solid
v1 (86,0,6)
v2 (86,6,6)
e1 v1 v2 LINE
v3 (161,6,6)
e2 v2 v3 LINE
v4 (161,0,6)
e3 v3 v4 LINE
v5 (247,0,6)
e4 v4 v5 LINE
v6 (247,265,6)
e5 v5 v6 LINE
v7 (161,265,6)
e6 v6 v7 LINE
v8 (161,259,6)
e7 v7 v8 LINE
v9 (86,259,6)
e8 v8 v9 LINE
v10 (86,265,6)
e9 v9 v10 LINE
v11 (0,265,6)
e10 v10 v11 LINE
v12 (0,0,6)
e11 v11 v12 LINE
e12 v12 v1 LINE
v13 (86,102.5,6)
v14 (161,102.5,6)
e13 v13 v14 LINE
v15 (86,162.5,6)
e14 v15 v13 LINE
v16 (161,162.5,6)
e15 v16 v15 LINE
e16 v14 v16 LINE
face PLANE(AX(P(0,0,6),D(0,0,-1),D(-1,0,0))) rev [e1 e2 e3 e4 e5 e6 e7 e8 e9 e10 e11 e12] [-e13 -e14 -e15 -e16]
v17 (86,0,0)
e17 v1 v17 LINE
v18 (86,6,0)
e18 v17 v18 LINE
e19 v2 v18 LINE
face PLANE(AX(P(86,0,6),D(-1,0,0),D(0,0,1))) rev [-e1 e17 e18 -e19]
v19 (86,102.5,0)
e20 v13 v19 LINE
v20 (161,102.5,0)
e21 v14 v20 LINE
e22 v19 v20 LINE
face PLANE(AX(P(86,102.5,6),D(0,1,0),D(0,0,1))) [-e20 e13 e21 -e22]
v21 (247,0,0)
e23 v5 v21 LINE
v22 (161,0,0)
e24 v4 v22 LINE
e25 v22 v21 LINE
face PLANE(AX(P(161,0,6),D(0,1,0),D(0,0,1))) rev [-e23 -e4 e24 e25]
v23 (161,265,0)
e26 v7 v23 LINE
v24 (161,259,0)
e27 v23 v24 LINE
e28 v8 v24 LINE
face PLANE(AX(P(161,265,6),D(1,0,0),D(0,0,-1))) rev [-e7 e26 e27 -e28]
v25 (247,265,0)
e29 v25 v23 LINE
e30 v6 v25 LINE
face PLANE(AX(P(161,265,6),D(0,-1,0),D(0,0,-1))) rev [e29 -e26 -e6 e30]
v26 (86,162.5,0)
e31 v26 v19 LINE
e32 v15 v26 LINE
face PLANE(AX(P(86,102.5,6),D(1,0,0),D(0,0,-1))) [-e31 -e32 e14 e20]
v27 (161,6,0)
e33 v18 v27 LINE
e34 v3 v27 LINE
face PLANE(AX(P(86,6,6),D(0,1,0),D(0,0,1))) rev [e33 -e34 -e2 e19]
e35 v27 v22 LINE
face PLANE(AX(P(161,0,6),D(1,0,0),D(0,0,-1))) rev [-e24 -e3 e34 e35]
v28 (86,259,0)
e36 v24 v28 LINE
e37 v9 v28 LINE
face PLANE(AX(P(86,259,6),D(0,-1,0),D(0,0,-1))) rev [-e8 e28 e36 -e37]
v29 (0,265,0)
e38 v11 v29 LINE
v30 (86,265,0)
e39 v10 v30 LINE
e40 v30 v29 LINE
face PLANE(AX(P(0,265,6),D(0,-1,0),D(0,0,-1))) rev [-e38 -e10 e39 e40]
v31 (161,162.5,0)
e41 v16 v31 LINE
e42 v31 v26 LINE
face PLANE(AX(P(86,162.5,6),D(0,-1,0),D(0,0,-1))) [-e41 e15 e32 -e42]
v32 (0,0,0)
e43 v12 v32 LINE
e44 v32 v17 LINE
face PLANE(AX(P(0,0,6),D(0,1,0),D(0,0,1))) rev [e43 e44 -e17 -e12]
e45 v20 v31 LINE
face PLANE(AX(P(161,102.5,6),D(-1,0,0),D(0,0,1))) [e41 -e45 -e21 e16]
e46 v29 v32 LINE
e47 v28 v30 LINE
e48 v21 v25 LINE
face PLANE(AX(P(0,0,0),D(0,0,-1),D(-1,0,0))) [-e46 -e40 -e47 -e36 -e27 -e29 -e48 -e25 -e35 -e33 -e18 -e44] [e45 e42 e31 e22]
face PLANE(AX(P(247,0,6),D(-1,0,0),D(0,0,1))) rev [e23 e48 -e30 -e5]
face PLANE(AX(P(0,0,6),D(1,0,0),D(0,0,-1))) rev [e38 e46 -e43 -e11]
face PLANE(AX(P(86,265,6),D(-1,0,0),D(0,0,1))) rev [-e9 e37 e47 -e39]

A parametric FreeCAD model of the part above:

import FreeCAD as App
import Part
import Sketcher

V = App.Vector

doc = App.newDocument("Part")
body = doc.addObject("PartDesign::Body", "Body")

sketch1 = doc.addObject("Sketcher::SketchObject", "Sketch")
body.addObject(sketch1)
sketch1.AttachmentSupport = (doc.XY_Plane, [""])
sketch1.MapMode = "FlatFace"
sketch1.addGeometry(Part.LineSegment(V(161, 0, 0), V(247, 0, 0)), False)
sketch1.addGeometry(Part.LineSegment(V(247, 0, 0), V(247, 265, 0)), False)
sketch1.addGeometry(Part.LineSegment(V(247, 265, 0), V(161, 265, 0)), False)
sketch1.addGeometry(Part.LineSegment(V(161, 265, 0), V(161, 259, 0)), False)
sketch1.addGeometry(Part.LineSegment(V(161, 259, 0), V(86, 259, 0)), False)
sketch1.addGeometry(Part.LineSegment(V(86, 259, 0), V(86, 265, 0)), False)
sketch1.addGeometry(Part.LineSegment(V(86, 265, 0), V(0, 265, 0)), False)
sketch1.addGeometry(Part.LineSegment(V(0, 265, 0), V(0, 0, 0)), False)
sketch1.addGeometry(Part.LineSegment(V(0, 0, 0), V(86, 0, 0)), False)
sketch1.addGeometry(Part.LineSegment(V(86, 0, 0), V(86, 6, 0)), False)
sketch1.addGeometry(Part.LineSegment(V(86, 6, 0), V(161, 6, 0)), False)
sketch1.addGeometry(Part.LineSegment(V(161, 6, 0), V(161, 0, 0)), False)
sketch1.addGeometry(Part.LineSegment(V(161, 102, 0), V(86, 102, 0)), False)
sketch1.addGeometry(Part.LineSegment(V(86, 102, 0), V(86, 162, 0)), False)
sketch1.addGeometry(Part.LineSegment(V(86, 162, 0), V(161, 162, 0)), False)
sketch1.addGeometry(Part.LineSegment(V(161, 162, 0), V(161, 102, 0)), False)
sketch1.addConstraint(Sketcher.Constraint("Coincident", 0, 2, 1, 1))
sketch1.addConstraint(Sketcher.Constraint("Coincident", 1, 2, 2, 1))
sketch1.addConstraint(Sketcher.Constraint("Coincident", 2, 2, 3, 1))
sketch1.addConstraint(Sketcher.Constraint("Coincident", 3, 2, 4, 1))
sketch1.addConstraint(Sketcher.Constraint("Coincident", 4, 2, 5, 1))
sketch1.addConstraint(Sketcher.Constraint("Coincident", 5, 2, 6, 1))
sketch1.addConstraint(Sketcher.Constraint("Coincident", 6, 2, 7, 1))
sketch1.addConstraint(Sketcher.Constraint("Coincident", 7, 2, 8, 1))
sketch1.addConstraint(Sketcher.Constraint("Coincident", 8, 2, 9, 1))
sketch1.addConstraint(Sketcher.Constraint("Coincident", 9, 2, 10, 1))
sketch1.addConstraint(Sketcher.Constraint("Coincident", 10, 2, 11, 1))
sketch1.addConstraint(Sketcher.Constraint("Coincident", 11, 2, 0, 1))
sketch1.addConstraint(Sketcher.Constraint("Coincident", 12, 2, 13, 1))
sketch1.addConstraint(Sketcher.Constraint("Coincident", 13, 2, 14, 1))
sketch1.addConstraint(Sketcher.Constraint("Coincident", 14, 2, 15, 1))
sketch1.addConstraint(Sketcher.Constraint("Coincident", 15, 2, 12, 1))
sketch1.addConstraint(Sketcher.Constraint("Horizontal", 0))
sketch1.addConstraint(Sketcher.Constraint("Vertical", 1))
sketch1.addConstraint(Sketcher.Constraint("Horizontal", 2))
sketch1.addConstraint(Sketcher.Constraint("Vertical", 3))
sketch1.addConstraint(Sketcher.Constraint("Horizontal", 4))
sketch1.addConstraint(Sketcher.Constraint("Vertical", 5))
sketch1.addConstraint(Sketcher.Constraint("Horizontal", 6))
sketch1.addConstraint(Sketcher.Constraint("Vertical", 7))
sketch1.addConstraint(Sketcher.Constraint("Horizontal", 8))
sketch1.addConstraint(Sketcher.Constraint("Vertical", 9))
sketch1.addConstraint(Sketcher.Constraint("Horizontal", 10))
sketch1.addConstraint(Sketcher.Constraint("Vertical", 11))
sketch1.addConstraint(Sketcher.Constraint("Horizontal", 12))
sketch1.addConstraint(Sketcher.Constraint("Vertical", 13))
sketch1.addConstraint(Sketcher.Constraint("Horizontal", 14))
sketch1.addConstraint(Sketcher.Constraint("Vertical", 15))
sketch1.addConstraint(Sketcher.Constraint("Coincident", 7, 2, -1, 1))
sketch1.addConstraint(Sketcher.Constraint("PointOnObject", 0, 2, -1))
sketch1.addConstraint(Sketcher.Constraint("Horizontal", 2, 2, 5, 2))
sketch1.addConstraint(Sketcher.Constraint("Vertical", 5, 2, 8, 2))
sketch1.addConstraint(Sketcher.Constraint("Vertical", 3, 2, 10, 2))
sketch1.addConstraint(Sketcher.Constraint("Vertical", 9, 2, 12, 2))
sketch1.addConstraint(Sketcher.Constraint("Vertical", 11, 2, 14, 2))
sketch1.addConstraint(Sketcher.Constraint("Equal", 2, 6))
sketch1.addConstraint(Sketcher.Constraint("Equal", 5, 9))
sketch1.addConstraint(Sketcher.Constraint("DistanceX", 0, 1, 0, 2, 86.0))
sketch1.addConstraint(Sketcher.Constraint("DistanceX", 4, 2, 4, 1, 75.0))
sketch1.addConstraint(Sketcher.Constraint("DistanceY", 1, 1, 1, 2, 265.0))
sketch1.addConstraint(Sketcher.Constraint("DistanceY", 3, 2, 3, 1, 6.0))
sketch1.addConstraint(Sketcher.Constraint("DistanceY", 13, 1, 13, 2, 60.0))
sketch1.addConstraint(Sketcher.Constraint("DistanceY", -1, 1, 12, 2, 102.5))
pad1 = doc.addObject("PartDesign::Pad", "Pad")
body.addObject(pad1)
pad1.Profile = sketch1
pad1.Length = 6

doc.recompute()
